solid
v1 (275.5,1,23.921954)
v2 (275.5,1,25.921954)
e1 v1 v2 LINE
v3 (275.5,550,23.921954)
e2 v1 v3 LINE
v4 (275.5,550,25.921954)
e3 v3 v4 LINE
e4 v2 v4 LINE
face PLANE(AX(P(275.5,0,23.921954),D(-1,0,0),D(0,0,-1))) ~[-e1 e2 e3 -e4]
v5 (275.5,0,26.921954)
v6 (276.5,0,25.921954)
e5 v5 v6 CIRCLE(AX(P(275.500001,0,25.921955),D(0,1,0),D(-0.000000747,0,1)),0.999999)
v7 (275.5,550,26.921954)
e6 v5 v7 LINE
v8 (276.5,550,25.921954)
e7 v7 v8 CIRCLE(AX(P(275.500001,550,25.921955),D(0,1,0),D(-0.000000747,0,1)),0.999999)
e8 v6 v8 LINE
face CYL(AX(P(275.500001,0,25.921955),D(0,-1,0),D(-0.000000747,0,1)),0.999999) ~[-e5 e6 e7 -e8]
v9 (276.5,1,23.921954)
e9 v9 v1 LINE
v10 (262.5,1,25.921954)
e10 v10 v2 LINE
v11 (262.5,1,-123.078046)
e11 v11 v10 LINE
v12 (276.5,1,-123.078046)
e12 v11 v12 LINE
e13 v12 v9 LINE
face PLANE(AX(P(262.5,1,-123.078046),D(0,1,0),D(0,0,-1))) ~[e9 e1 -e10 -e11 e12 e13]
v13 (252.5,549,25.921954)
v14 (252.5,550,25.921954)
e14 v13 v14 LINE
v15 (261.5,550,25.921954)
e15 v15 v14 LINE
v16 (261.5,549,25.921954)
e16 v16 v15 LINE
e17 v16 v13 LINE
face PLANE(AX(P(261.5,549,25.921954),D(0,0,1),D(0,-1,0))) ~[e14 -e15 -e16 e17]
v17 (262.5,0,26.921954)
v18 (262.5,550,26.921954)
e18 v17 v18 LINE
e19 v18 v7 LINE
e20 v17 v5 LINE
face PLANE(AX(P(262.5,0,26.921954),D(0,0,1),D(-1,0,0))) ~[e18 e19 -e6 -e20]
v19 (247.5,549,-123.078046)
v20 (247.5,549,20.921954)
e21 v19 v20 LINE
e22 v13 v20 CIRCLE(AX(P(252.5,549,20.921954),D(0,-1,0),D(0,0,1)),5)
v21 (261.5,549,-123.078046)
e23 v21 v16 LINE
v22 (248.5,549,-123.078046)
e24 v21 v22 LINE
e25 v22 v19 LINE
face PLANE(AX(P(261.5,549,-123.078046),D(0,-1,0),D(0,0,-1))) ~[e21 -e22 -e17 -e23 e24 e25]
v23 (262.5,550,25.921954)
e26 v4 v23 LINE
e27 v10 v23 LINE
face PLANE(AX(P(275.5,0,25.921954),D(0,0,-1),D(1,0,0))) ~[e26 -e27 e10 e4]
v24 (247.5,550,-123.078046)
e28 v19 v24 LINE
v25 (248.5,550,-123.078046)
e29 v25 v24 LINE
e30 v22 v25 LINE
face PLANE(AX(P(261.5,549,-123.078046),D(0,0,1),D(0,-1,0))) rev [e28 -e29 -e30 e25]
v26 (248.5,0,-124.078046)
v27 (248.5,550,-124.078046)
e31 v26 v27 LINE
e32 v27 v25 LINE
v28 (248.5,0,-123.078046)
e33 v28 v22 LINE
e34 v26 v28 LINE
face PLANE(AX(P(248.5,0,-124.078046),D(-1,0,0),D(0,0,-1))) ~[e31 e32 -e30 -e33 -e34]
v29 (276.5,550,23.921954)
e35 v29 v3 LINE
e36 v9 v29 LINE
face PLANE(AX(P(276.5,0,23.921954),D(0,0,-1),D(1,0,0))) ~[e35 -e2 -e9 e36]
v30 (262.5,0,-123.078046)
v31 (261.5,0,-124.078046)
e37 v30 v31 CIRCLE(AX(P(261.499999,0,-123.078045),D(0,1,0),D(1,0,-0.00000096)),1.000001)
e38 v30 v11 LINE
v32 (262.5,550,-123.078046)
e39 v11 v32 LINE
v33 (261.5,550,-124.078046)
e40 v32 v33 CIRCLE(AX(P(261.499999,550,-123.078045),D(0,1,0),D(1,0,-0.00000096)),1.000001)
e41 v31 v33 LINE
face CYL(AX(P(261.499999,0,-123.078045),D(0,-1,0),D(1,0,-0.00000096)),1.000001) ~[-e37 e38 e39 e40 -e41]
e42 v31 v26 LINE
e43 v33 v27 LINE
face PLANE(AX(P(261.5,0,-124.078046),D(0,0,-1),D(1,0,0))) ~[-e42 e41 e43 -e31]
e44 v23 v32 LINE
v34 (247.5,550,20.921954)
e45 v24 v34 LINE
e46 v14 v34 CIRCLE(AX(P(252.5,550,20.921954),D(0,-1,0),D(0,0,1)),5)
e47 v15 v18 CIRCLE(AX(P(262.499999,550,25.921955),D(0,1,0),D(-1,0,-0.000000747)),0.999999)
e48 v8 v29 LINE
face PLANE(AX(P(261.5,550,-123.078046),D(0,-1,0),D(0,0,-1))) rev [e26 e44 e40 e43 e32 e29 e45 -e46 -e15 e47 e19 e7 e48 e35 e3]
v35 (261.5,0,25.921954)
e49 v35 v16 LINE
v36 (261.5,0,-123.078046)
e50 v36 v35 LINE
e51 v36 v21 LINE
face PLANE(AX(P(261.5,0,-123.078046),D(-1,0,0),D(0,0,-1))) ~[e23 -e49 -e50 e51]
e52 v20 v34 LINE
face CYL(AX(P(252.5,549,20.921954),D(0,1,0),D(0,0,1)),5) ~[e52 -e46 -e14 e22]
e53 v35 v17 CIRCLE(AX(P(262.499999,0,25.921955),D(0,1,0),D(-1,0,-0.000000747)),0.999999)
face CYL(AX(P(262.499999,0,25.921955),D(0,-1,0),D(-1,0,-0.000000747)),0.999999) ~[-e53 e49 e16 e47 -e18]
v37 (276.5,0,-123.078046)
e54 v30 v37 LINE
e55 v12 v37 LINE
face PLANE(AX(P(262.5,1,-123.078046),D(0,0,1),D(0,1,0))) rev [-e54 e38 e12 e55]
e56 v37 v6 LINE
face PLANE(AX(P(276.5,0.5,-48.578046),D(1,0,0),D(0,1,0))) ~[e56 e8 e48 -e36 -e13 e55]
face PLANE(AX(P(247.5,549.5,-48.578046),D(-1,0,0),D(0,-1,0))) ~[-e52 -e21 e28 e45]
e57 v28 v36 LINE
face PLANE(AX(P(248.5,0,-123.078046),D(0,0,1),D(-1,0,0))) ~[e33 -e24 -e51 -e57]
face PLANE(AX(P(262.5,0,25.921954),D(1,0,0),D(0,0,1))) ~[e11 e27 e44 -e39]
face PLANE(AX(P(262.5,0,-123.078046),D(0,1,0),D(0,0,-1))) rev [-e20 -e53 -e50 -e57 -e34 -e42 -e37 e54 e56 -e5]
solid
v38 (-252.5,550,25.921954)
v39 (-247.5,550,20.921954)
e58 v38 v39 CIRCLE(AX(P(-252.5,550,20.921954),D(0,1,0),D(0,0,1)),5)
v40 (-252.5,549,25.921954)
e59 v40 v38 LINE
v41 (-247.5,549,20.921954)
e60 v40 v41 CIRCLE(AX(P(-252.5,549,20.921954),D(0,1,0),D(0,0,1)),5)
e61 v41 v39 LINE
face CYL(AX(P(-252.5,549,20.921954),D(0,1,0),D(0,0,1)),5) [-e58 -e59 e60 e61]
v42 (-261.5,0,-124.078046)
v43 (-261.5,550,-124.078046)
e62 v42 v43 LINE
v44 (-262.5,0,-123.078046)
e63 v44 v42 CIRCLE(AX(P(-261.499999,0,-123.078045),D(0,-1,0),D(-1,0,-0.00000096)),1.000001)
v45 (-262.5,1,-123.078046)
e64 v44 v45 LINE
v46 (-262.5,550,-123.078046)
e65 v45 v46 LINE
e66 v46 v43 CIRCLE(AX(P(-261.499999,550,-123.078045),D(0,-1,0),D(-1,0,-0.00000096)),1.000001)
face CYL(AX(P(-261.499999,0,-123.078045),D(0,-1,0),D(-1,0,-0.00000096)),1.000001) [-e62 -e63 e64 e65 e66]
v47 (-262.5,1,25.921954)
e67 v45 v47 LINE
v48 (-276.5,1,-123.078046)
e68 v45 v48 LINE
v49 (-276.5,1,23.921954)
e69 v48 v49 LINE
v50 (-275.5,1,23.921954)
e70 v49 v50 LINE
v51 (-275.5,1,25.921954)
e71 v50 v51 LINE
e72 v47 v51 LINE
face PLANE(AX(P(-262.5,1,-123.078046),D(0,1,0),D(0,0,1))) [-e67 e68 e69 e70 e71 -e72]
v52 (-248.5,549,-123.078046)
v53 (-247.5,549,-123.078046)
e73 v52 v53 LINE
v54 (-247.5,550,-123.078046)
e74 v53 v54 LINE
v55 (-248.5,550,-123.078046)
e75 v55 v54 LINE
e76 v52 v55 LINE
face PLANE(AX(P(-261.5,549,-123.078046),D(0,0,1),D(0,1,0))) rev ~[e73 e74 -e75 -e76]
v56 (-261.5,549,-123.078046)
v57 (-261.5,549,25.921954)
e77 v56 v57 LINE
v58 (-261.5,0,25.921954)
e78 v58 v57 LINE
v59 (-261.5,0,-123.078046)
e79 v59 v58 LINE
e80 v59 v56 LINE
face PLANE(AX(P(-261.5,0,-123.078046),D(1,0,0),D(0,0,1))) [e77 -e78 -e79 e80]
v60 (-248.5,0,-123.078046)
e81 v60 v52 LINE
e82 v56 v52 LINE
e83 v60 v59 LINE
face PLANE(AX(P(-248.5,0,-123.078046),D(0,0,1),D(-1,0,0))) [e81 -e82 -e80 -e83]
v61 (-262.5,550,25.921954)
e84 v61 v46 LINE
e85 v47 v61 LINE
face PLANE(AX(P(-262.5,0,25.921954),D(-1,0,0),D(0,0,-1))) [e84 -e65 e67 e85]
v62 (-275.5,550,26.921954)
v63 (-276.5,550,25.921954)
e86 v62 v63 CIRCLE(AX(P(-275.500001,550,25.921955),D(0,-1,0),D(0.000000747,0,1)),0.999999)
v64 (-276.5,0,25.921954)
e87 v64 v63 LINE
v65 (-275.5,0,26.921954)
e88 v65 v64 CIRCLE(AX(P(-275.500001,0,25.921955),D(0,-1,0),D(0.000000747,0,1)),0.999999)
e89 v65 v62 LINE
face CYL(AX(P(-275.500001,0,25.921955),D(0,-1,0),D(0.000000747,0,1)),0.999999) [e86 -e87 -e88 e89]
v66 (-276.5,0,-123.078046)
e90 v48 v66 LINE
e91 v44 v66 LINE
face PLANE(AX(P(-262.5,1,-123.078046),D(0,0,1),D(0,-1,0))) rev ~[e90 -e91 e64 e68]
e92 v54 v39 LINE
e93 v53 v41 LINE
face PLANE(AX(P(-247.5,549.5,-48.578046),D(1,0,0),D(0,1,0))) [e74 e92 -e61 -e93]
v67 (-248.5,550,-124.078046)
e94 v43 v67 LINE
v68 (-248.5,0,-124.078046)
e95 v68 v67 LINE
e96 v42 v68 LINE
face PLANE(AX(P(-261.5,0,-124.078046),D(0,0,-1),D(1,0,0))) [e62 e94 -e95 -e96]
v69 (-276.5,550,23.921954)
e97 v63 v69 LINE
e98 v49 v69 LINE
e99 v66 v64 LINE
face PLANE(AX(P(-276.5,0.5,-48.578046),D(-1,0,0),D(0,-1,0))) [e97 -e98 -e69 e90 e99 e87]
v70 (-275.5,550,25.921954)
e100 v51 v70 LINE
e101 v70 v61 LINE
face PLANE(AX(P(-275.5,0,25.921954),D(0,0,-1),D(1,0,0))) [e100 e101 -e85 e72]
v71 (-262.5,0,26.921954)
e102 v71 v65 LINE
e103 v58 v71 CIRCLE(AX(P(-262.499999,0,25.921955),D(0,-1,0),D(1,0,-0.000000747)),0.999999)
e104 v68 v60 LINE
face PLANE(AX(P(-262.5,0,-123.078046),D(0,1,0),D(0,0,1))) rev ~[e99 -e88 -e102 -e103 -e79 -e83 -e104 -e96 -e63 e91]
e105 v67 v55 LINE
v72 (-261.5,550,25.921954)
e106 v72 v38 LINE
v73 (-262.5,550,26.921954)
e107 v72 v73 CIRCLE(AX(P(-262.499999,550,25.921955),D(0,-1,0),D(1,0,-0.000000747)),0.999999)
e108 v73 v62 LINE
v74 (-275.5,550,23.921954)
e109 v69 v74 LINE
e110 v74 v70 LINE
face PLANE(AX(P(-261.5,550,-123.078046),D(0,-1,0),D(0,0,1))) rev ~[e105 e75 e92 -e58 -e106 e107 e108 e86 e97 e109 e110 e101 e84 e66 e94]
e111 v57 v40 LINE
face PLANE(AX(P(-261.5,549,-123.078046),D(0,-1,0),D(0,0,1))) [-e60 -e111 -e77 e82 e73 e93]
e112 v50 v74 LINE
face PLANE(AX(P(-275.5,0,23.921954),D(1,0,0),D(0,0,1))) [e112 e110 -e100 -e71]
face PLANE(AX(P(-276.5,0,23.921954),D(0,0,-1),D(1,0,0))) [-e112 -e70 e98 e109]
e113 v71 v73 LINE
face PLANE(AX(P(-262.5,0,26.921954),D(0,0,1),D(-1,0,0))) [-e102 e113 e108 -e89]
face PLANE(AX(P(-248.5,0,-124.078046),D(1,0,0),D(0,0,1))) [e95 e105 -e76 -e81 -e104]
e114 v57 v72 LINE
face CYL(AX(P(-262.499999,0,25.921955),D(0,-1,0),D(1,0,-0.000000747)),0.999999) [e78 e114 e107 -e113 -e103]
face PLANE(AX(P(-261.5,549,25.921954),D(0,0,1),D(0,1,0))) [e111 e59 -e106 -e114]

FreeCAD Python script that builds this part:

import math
import FreeCAD as App
import Part
import Sketcher
from FreeCAD import Vector
Q = App.Units.Quantity


def edges_at(feature, points):
    """Names of the edges that pass closest to the given points."""
    edges = feature.Shape.Edges
    near = lambda p: min(range(len(edges)), key=lambda i: edges[i].distToShape(Part.Vertex(*p))[0])
    return sorted({f"Edge{near(p) + 1}" for p in points})

doc = App.newDocument("Part")
body = doc.addObject("PartDesign::Body", "Body")

# Sketch on XZ plane
sketch1 = body.newObject("Sketcher::SketchObject", "Sketch")
sketch1.AttachmentSupport = (doc.getObject("XZ_Plane"), [""])
sketch1.MapMode = "FlatFace"
sketch1.addGeometry([
    Part.LineSegment(Vector(-275.5, 23.9, 0), Vector(-275.5, 25.9, 0)),  # 0
    Part.LineSegment(Vector(-275.5, 25.9, 0), Vector(-262.5, 25.9, 0)),  # 1
    Part.LineSegment(Vector(-262.5, 25.9, 0), Vector(-262.5, -123.1, 0)),  # 2
    Part.ArcOfCircle(Part.Circle(Vector(-261.5, -123.1, 0), Vector(0, 0, 1), 1), math.radians(-180), math.radians(-90)),  # 3
    Part.LineSegment(Vector(-261.5, -124.1, 0), Vector(-248.5, -124.1, 0)),  # 4
    Part.LineSegment(Vector(-248.5, -124.1, 0), Vector(-248.5, -123.1, 0)),  # 5
    Part.LineSegment(Vector(-248.5, -123.1, 0), Vector(-261.5, -123.1, 0)),  # 6
    Part.LineSegment(Vector(-261.5, -123.1, 0), Vector(-261.5, 25.9, 0)),  # 7
    Part.ArcOfCircle(Part.Circle(Vector(-262.5, 25.9, 0), Vector(0, 0, 1), 1), math.radians(0), math.radians(90)),  # 8
    Part.LineSegment(Vector(-262.5, 26.9, 0), Vector(-275.5, 26.9, 0)),  # 9
    Part.ArcOfCircle(Part.Circle(Vector(-275.5, 25.9, 0), Vector(0, 0, 1), 1), math.radians(90), math.radians(180)),  # 10
    Part.LineSegment(Vector(-276.5, 25.9, 0), Vector(-276.5, 23.9, 0)),  # 11
    Part.LineSegment(Vector(-276.5, 23.9, 0), Vector(-275.5, 23.9, 0)),  # 12
], False)
sketch1.addConstraint([
    Sketcher.Constraint("Coincident", 0, 2, 1, 1),
    Sketcher.Constraint("Coincident", 1, 2, 2, 1),
    Sketcher.Constraint("Tangent", 2, 2, 3, 1),
    Sketcher.Constraint("Tangent", 3, 2, 4, 1),
    Sketcher.Constraint("Coincident", 4, 2, 5, 1),
    Sketcher.Constraint("Coincident", 5, 2, 6, 1),
    Sketcher.Constraint("Coincident", 6, 2, 7, 1),
    Sketcher.Constraint("Tangent", 7, 2, 8, 1),
    Sketcher.Constraint("Tangent", 8, 2, 9, 1),
    Sketcher.Constraint("Tangent", 9, 2, 10, 1),
    Sketcher.Constraint("Tangent", 10, 2, 11, 1),
    Sketcher.Constraint("Coincident", 11, 2, 12, 1),
    Sketcher.Constraint("Coincident", 12, 2, 0, 1),
    Sketcher.Constraint("Vertical", 0),
    Sketcher.Constraint("Horizontal", 1),
    Sketcher.Constraint("Vertical", 2),
    Sketcher.Constraint("Horizontal", 4),
    Sketcher.Constraint("Vertical", 5),
    Sketcher.Constraint("Horizontal", 6),
    Sketcher.Constraint("Vertical", 7),
    Sketcher.Constraint("Horizontal", 9),
    Sketcher.Constraint("Vertical", 11),
    Sketcher.Constraint("Horizontal", 12),
    Sketcher.Constraint("Coincident", 0, 2, 10, 3),
    Sketcher.Constraint("Coincident", 1, 2, 8, 3),
    Sketcher.Constraint("Coincident", 6, 2, 3, 3),
    Sketcher.Constraint("Equal", 1, 4),
    Sketcher.Constraint("Radius", 3, Q("1.000001 mm")),
    Sketcher.Constraint("DistanceX", 1, 1, 1, 2, Q("13 mm")),
    Sketcher.Constraint("DistanceY", 0, 1, 0, 2, Q("2 mm")),
    Sketcher.Constraint("DistanceY", 2, 2, 2, 1, Q("149 mm")),
    Sketcher.Constraint("DistanceX", 3, 3, -1, 1, Q("261.499999 mm")),
    Sketcher.Constraint("DistanceY", 3, 3, -1, 1, Q("123.078045 mm")),
])
pad1 = body.newObject("PartDesign::Pad", "Pad")
pad1.Profile = sketch1
pad1.Length = 550
pad1.Reversed = True

# Sketch on YZ plane
sketch2 = body.newObject("Sketcher::SketchObject", "Sketch001")
sketch2.AttachmentSupport = (doc.getObject("YZ_Plane"), [""])
sketch2.MapMode = "FlatFace"
sketch2.AttachmentOffset = App.Placement(Vector(0, 0, -261.5), App.Rotation())
sketch2.addGeometry([
    Part.LineSegment(Vector(549, 25.9, 0), Vector(549, -123.1, 0)),
    Part.LineSegment(Vector(549, -123.1, 0), Vector(550, -123.1, 0)),
    Part.LineSegment(Vector(550, -123.1, 0), Vector(550, 25.9, 0)),
    Part.LineSegment(Vector(550, 25.9, 0), Vector(549, 25.9, 0)),
], False)
sketch2.addConstraint([
    Sketcher.Constraint("Coincident", 0, 2, 1, 1),
    Sketcher.Constraint("Coincident", 1, 2, 2, 1),
    Sketcher.Constraint("Coincident", 2, 2, 3, 1),
    Sketcher.Constraint("Coincident", 3, 2, 0, 1),
    Sketcher.Constraint("Vertical", 0),
    Sketcher.Constraint("Horizontal", 1),
    Sketcher.Constraint("Vertical", 2),
    Sketcher.Constraint("Horizontal", 3),
    Sketcher.Constraint("DistanceX", 1, 1, 1, 2, Q("1 mm")),
    Sketcher.Constraint("DistanceY", 0, 2, 0, 1, Q("149 mm")),
    Sketcher.Constraint("DistanceX", -1, 1, 0, 2, Q("549 mm")),
    Sketcher.Constraint("DistanceY", 0, 2, -1, 1, Q("123.078046 mm")),
])
pad2 = body.newObject("PartDesign::Pad", "Pad001")
pad2.Profile = sketch2
pad2.Length = 14
doc.recompute()

fillet = body.newObject("PartDesign::Fillet", "Fillet")
fillet.Base = (pad2, edges_at(pad2, [(-247.5, 549.5, 25.922)]))
fillet.Radius = 5

# Sketch on YZ plane
sketch3 = body.newObject("Sketcher::SketchObject", "Sketch002")
sketch3.AttachmentSupport = (doc.getObject("YZ_Plane"), [""])
sketch3.MapMode = "FlatFace"
sketch3.AttachmentOffset = App.Placement(Vector(0, 0, -262.5), App.Rotation())
sketch3.addGeometry([
    Part.LineSegment(Vector(1, 25.9, 0), Vector(1, -123.1, 0)),
    Part.LineSegment(Vector(1, -123.1, 0), Vector(0, -123.1, 0)),
    Part.LineSegment(Vector(0, -123.1, 0), Vector(0, 25.9, 0)),
    Part.LineSegment(Vector(0, 25.9, 0), Vector(1, 25.9, 0)),
], False)
sketch3.addConstraint([
    Sketcher.Constraint("Coincident", 0, 2, 1, 1),
    Sketcher.Constraint("Coincident", 1, 2, 2, 1),
    Sketcher.Constraint("Coincident", 2, 2, 3, 1),
    Sketcher.Constraint("Coincident", 3, 2, 0, 1),
    Sketcher.Constraint("Vertical", 0),
    Sketcher.Constraint("Horizontal", 1),
    Sketcher.Constraint("Vertical", 2),
    Sketcher.Constraint("Horizontal", 3),
    Sketcher.Constraint("PointOnObject", 1, 2, -2),
    Sketcher.Constraint("DistanceX", 1, 2, 1, 1, Q("1 mm")),
    Sketcher.Constraint("DistanceY", 0, 2, 0, 1, Q("149 mm")),
    Sketcher.Constraint("DistanceY", 0, 2, -1, 1, Q("123.078046 mm")),
])
pad3 = body.newObject("PartDesign::Pad", "Pad002")
pad3.Profile = sketch3
pad3.Length = 14
pad3.Reversed = True

# Sketch on YZ plane
sketch4 = body.newObject("Sketcher::SketchObject", "Sketch003")
sketch4.AttachmentSupport = (doc.getObject("YZ_Plane"), [""])
sketch4.MapMode = "FlatFace"
sketch4.AttachmentOffset = App.Placement(Vector(0, 0, -262.5), App.Rotation())
sketch4.addGeometry([
    Part.LineSegment(Vector(1, 25.9, 0), Vector(1, -123.1, 0)),
    Part.LineSegment(Vector(1, -123.1, 0), Vector(0, -123.1, 0)),
    Part.LineSegment(Vector(0, -123.1, 0), Vector(0, 25.9, 0)),
    Part.LineSegment(Vector(0, 25.9, 0), Vector(1, 25.9, 0)),
], False)
sketch4.addConstraint([
    Sketcher.Constraint("Coincident", 0, 2, 1, 1),
    Sketcher.Constraint("Coincident", 1, 2, 2, 1),
    Sketcher.Constraint("Coincident", 2, 2, 3, 1),
    Sketcher.Constraint("Coincident", 3, 2, 0, 1),
    Sketcher.Constraint("Vertical", 0),
    Sketcher.Constraint("Horizontal", 1),
    Sketcher.Constraint("Vertical", 2),
    Sketcher.Constraint("Horizontal", 3),
    Sketcher.Constraint("PointOnObject", 1, 2, -2),
    Sketcher.Constraint("DistanceX", 1, 2, 1, 1, Q("1 mm")),
    Sketcher.Constraint("DistanceY", 0, 2, 0, 1, Q("149 mm")),
    Sketcher.Constraint("DistanceY", 0, 2, -1, 1, Q("123.078046 mm")),
])
pad4 = body.newObject("PartDesign::Pad", "Pad003")
pad4.Profile = sketch4
pad4.Length = 14
pad4.Reversed = True
body2 = doc.addObject("PartDesign::Body", "Body001")
doc.recompute()

mirroring = doc.addObject("Part::Mirroring", "Mirroring")
mirroring.Source = body
mirroring.Base = Vector(0, 0, 0)
mirroring.Normal = Vector(1, 0, 0)
body2.BaseFeature = mirroring
doc.recompute()
mirroring.Visibility = False

doc.recompute()
